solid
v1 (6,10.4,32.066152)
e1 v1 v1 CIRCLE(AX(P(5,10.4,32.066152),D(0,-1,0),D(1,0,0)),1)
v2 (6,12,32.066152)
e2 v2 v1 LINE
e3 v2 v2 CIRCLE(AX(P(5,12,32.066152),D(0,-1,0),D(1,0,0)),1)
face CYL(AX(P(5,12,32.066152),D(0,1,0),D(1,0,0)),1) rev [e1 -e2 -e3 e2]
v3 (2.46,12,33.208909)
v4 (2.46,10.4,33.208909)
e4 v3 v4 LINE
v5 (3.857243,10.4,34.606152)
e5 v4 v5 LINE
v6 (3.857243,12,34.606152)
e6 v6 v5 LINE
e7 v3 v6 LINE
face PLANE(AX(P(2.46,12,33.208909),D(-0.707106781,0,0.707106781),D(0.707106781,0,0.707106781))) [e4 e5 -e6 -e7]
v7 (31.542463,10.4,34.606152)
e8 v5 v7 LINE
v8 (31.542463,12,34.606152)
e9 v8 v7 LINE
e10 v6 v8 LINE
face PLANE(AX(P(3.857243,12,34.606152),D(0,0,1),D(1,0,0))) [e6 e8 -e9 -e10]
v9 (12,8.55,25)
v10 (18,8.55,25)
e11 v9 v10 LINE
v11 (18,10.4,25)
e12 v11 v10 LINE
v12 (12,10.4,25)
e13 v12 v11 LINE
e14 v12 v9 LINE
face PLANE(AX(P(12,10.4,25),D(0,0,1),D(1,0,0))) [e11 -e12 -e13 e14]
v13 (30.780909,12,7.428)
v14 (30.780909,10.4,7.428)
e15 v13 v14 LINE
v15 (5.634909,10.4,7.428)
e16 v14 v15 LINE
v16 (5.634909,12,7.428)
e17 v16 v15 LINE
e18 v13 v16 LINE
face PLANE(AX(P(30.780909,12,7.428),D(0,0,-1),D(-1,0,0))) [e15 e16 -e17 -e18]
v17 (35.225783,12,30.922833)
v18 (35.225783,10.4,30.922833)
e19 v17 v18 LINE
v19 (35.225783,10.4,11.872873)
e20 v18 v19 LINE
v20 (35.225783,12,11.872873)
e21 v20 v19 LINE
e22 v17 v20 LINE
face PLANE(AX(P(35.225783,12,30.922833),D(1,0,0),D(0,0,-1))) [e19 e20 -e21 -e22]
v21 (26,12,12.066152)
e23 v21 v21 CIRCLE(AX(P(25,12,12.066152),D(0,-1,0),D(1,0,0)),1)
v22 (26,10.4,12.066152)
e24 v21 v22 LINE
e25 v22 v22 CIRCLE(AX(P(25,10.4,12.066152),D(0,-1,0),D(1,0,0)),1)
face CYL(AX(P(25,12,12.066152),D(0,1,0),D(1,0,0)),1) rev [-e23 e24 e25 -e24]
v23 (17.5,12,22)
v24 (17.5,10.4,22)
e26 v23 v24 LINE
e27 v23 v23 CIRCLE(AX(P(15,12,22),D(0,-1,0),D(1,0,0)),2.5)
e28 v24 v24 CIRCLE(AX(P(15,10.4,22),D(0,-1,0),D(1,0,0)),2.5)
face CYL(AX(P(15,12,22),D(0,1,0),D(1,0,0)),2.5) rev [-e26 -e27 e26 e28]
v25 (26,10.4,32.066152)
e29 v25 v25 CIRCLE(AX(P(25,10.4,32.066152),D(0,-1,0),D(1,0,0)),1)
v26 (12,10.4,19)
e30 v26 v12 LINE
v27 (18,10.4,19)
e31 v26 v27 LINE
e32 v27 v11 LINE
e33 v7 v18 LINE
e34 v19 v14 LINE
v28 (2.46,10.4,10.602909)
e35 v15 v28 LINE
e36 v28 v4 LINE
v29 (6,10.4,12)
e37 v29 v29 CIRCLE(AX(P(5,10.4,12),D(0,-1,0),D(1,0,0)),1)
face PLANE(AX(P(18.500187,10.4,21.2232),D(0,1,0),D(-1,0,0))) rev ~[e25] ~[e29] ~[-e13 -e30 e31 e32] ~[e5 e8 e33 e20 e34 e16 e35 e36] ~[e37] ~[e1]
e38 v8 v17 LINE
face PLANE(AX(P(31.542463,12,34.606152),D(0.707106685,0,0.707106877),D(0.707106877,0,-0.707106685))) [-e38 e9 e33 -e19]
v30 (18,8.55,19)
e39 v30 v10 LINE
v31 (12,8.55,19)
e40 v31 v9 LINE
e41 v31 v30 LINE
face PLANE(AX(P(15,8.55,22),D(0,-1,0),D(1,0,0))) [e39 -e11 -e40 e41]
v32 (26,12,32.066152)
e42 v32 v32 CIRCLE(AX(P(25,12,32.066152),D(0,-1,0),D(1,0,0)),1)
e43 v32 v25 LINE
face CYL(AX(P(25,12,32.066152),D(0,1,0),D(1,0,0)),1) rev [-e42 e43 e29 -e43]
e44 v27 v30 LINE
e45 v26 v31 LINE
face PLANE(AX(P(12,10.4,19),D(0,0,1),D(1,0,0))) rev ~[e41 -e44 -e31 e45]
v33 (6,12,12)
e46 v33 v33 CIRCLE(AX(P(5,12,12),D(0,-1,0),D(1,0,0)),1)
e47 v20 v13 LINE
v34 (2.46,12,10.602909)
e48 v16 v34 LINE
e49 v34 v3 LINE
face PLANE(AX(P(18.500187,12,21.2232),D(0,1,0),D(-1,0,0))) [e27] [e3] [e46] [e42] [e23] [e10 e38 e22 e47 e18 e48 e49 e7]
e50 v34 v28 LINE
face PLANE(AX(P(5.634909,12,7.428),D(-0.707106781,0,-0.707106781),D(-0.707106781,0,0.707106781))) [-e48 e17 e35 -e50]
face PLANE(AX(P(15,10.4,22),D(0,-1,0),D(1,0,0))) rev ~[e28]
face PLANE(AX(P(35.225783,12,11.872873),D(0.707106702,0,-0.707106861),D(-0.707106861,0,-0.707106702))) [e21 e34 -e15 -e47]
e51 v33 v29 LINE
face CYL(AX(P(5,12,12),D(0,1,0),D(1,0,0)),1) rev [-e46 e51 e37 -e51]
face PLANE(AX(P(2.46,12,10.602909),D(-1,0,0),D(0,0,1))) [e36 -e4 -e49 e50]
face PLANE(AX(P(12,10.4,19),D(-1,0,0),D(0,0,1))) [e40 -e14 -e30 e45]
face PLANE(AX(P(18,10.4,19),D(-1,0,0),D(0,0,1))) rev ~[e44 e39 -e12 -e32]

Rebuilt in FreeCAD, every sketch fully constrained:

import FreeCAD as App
import Part
import Sketcher
Q = App.Units.Quantity

doc = App.newDocument("Part")
params = doc.addObject("Spreadsheet::Sheet", "Params")
for row, (alias, value) in enumerate([
    ("sketch1_diameter", "2 mm"),
    ("sketch1_diameter2", "5 mm"),
    ("sketch1_length", "4.489999 mm"),
    ("pad1_length", "1.6 mm"),
    ("sketch2_width", "6 mm"),
    ("pad2_length", "1.85 mm"),
], start=1):
    params.set(f"A{row}", alias)
    params.set(f"B{row}", "=" + value)
    params.setAlias(f"B{row}", alias)

body = doc.addObject("PartDesign::Body", "Body")

sketch1 = doc.addObject("Sketcher::SketchObject", "Sketch")
body.addObject(sketch1)
sketch1.AttachmentSupport = (doc.XZ_Plane, [""])
sketch1.MapMode = "FlatFace"
sketch1.addGeometry(Part.LineSegment(App.Vector(-2.5, -1.4, 0), App.Vector(0.6, -4.6, 0)), False)
sketch1.addGeometry(Part.LineSegment(App.Vector(0.6, -4.6, 0), App.Vector(25.8, -4.6, 0)), False)
sketch1.addGeometry(Part.LineSegment(App.Vector(25.8, -4.6, 0), App.Vector(30.2, -0.1, 0)), False)
sketch1.addGeometry(Part.LineSegment(App.Vector(30.2, -0.1, 0), App.Vector(30.2, 18.9, 0)), False)
sketch1.addGeometry(Part.LineSegment(App.Vector(30.2, 18.9, 0), App.Vector(26.5, 22.6, 0)), False)
sketch1.addGeometry(Part.LineSegment(App.Vector(26.5, 22.6, 0), App.Vector(-1.1, 22.6, 0)), False)
sketch1.addGeometry(Part.LineSegment(App.Vector(-1.1, 22.6, 0), App.Vector(-2.5, 21.2, 0)), False)
sketch1.addGeometry(Part.LineSegment(App.Vector(-2.5, 21.2, 0), App.Vector(-2.5, -1.4, 0)), False)
sketch1.addGeometry(Part.Circle(App.Vector(20, 0.1, 0), App.Vector(0, 0, 1), 1), False)
sketch1.addGeometry(Part.Circle(App.Vector(0, 0, 0), App.Vector(0, 0, 1), 1), False)
sketch1.addGeometry(Part.Circle(App.Vector(10, 10, 0), App.Vector(0, 0, 1), 2.5), False)
sketch1.addGeometry(Part.Circle(App.Vector(20, 20.1, 0), App.Vector(0, 0, 1), 1), False)
sketch1.addGeometry(Part.Circle(App.Vector(0, 20.1, 0), App.Vector(0, 0, 1), 1), False)
sketch1.addConstraint(Sketcher.Constraint("Coincident", 0, 2, 1, 1))
sketch1.addConstraint(Sketcher.Constraint("Coincident", 1, 2, 2, 1))
sketch1.addConstraint(Sketcher.Constraint("Coincident", 2, 2, 3, 1))
sketch1.addConstraint(Sketcher.Constraint("Coincident", 3, 2, 4, 1))
sketch1.addConstraint(Sketcher.Constraint("Coincident", 4, 2, 5, 1))
sketch1.addConstraint(Sketcher.Constraint("Coincident", 5, 2, 6, 1))
sketch1.addConstraint(Sketcher.Constraint("Coincident", 6, 2, 7, 1))
sketch1.addConstraint(Sketcher.Constraint("Coincident", 7, 2, 0, 1))
sketch1.addConstraint(Sketcher.Constraint("Horizontal", 1))
sketch1.addConstraint(Sketcher.Constraint("Vertical", 3))
sketch1.addConstraint(Sketcher.Constraint("Horizontal", 5))
sketch1.addConstraint(Sketcher.Constraint("Vertical", 7))
sketch1.addConstraint(Sketcher.Constraint("Coincident", 9, 3, -1, 1))
sketch1.addConstraint(Sketcher.Constraint("Equal", 8, 9))
sketch1.addConstraint(Sketcher.Constraint("Equal", 9, 11))
sketch1.addConstraint(Sketcher.Constraint("Equal", 11, 12))
sketch1.addConstraint(Sketcher.Constraint("PointOnObject", 12, 3, -2))
sketch1.addConstraint(Sketcher.Constraint("Perpendicular", 0, 2))
sketch1.addConstraint(Sketcher.Constraint("Perpendicular", 2, 4))
sketch1.addConstraint(Sketcher.Constraint("Perpendicular", 4, 6))
sketch1.addConstraint(Sketcher.Constraint("Horizontal", 11, 3, 12, 3))
sketch1.addConstraint(Sketcher.Constraint("Vertical", 8, 3, 11, 3))
sketch1.addConstraint(Sketcher.Constraint("Diameter", 8, 2.0))
sketch1.addConstraint(Sketcher.Constraint("Diameter", 10, 5.0))
sketch1.addConstraint(Sketcher.Constraint("Angle", 0, Q("-45 deg")))
sketch1.addConstraint(Sketcher.Constraint("DistanceX", -1, 1, 8, 3, 20.0))
sketch1.addConstraint(Sketcher.Constraint("DistanceX", -1, 1, 10, 3, 10.0))
sketch1.addConstraint(Sketcher.Constraint("DistanceY", -1, 1, 10, 3, 10.0))
sketch1.addConstraint(Sketcher.Constraint("DistanceY", 8, 3, 11, 3, 20.0))
sketch1.addConstraint(Sketcher.Constraint("Distance", 0, 4.489999))
sketch1.addConstraint(Sketcher.Constraint("DistanceX", 1, 1, 1, 2, 25.146))
sketch1.addConstraint(Sketcher.Constraint("DistanceY", 7, 2, 7, 1, 22.606))
sketch1.addConstraint(Sketcher.Constraint("DistanceX", 6, 2, -1, 1, 2.54))
sketch1.addConstraint(Sketcher.Constraint("DistanceY", 11, 3, 4, 2, 2.54))
sketch1.addConstraint(Sketcher.Constraint("Distance", 2, 6.286))
sketch1.addConstraint(Sketcher.Constraint("Distance", 4, 5.209))
sketch1.addConstraint(Sketcher.Constraint("Distance", 6, 1.976))
sketch1.addConstraint(Sketcher.Constraint("DistanceY", 0, 2, -1, 1, 4.572))
sketch1.setExpression("Constraints[22]", "Params.sketch1_diameter")
sketch1.setExpression("Constraints[23]", "Params.sketch1_diameter2")
sketch1.setExpression("Constraints[29]", "Params.sketch1_length")
pad1 = doc.addObject("PartDesign::Pad", "Pad")
body.addObject(pad1)
pad1.Profile = sketch1
pad1.setExpression("Length", "Params.pad1_length")

sketch2 = doc.addObject("Sketcher::SketchObject", "Sketch001")
body.addObject(sketch2)
sketch2.AttachmentSupport = (doc.XZ_Plane, [""])
sketch2.MapMode = "FlatFace"
sketch2.AttachmentOffset = App.Placement(App.Vector(0, 0, 1.6), App.Rotation())
sketch2.addGeometry(Part.LineSegment(App.Vector(7, 13, 0), App.Vector(7, 7, 0)), False)
sketch2.addGeometry(Part.LineSegment(App.Vector(7, 7, 0), App.Vector(13, 7, 0)), False)
sketch2.addGeometry(Part.LineSegment(App.Vector(13, 7, 0), App.Vector(13, 13, 0)), False)
sketch2.addGeometry(Part.LineSegment(App.Vector(13, 13, 0), App.Vector(7, 13, 0)), False)
sketch2.addConstraint(Sketcher.Constraint("Coincident", 0, 2, 1, 1))
sketch2.addConstraint(Sketcher.Constraint("Coincident", 1, 2, 2, 1))
sketch2.addConstraint(Sketcher.Constraint("Coincident", 2, 2, 3, 1))
sketch2.addConstraint(Sketcher.Constraint("Coincident", 3, 2, 0, 1))
sketch2.addConstraint(Sketcher.Constraint("Vertical", 0))
sketch2.addConstraint(Sketcher.Constraint("Horizontal", 1))
sketch2.addConstraint(Sketcher.Constraint("Vertical", 2))
sketch2.addConstraint(Sketcher.Constraint("Horizontal", 3))
sketch2.addConstraint(Sketcher.Constraint("Equal", 3, 0))
sketch2.addConstraint(Sketcher.Constraint("DistanceX", 1, 1, 1, 2, 6.0))
sketch2.addConstraint(Sketcher.Constraint("DistanceX", -1, 1, 0, 2, 7.0))
sketch2.addConstraint(Sketcher.Constraint("DistanceY", -1, 1, 0, 2, 7.0))
sketch2.setExpression("Constraints[9]", "Params.sketch2_width")
pad2 = doc.addObject("PartDesign::Pad", "Pad001")
body.addObject(pad2)
pad2.Profile = sketch2
pad2.setExpression("Length", "Params.pad2_length")
body2 = doc.addObject("PartDesign::Body", "Body001")
doc.recompute()

body.Placement = App.Placement(App.Vector(5, 12, 12), App.Rotation(App.Vector(0, 0, 1), 0))
boolean = doc.addObject("PartDesign::Boolean", "Boolean")
body2.addObject(boolean)
boolean.Type = "Fuse"
boolean.addObjects([body])

doc.recompute()
